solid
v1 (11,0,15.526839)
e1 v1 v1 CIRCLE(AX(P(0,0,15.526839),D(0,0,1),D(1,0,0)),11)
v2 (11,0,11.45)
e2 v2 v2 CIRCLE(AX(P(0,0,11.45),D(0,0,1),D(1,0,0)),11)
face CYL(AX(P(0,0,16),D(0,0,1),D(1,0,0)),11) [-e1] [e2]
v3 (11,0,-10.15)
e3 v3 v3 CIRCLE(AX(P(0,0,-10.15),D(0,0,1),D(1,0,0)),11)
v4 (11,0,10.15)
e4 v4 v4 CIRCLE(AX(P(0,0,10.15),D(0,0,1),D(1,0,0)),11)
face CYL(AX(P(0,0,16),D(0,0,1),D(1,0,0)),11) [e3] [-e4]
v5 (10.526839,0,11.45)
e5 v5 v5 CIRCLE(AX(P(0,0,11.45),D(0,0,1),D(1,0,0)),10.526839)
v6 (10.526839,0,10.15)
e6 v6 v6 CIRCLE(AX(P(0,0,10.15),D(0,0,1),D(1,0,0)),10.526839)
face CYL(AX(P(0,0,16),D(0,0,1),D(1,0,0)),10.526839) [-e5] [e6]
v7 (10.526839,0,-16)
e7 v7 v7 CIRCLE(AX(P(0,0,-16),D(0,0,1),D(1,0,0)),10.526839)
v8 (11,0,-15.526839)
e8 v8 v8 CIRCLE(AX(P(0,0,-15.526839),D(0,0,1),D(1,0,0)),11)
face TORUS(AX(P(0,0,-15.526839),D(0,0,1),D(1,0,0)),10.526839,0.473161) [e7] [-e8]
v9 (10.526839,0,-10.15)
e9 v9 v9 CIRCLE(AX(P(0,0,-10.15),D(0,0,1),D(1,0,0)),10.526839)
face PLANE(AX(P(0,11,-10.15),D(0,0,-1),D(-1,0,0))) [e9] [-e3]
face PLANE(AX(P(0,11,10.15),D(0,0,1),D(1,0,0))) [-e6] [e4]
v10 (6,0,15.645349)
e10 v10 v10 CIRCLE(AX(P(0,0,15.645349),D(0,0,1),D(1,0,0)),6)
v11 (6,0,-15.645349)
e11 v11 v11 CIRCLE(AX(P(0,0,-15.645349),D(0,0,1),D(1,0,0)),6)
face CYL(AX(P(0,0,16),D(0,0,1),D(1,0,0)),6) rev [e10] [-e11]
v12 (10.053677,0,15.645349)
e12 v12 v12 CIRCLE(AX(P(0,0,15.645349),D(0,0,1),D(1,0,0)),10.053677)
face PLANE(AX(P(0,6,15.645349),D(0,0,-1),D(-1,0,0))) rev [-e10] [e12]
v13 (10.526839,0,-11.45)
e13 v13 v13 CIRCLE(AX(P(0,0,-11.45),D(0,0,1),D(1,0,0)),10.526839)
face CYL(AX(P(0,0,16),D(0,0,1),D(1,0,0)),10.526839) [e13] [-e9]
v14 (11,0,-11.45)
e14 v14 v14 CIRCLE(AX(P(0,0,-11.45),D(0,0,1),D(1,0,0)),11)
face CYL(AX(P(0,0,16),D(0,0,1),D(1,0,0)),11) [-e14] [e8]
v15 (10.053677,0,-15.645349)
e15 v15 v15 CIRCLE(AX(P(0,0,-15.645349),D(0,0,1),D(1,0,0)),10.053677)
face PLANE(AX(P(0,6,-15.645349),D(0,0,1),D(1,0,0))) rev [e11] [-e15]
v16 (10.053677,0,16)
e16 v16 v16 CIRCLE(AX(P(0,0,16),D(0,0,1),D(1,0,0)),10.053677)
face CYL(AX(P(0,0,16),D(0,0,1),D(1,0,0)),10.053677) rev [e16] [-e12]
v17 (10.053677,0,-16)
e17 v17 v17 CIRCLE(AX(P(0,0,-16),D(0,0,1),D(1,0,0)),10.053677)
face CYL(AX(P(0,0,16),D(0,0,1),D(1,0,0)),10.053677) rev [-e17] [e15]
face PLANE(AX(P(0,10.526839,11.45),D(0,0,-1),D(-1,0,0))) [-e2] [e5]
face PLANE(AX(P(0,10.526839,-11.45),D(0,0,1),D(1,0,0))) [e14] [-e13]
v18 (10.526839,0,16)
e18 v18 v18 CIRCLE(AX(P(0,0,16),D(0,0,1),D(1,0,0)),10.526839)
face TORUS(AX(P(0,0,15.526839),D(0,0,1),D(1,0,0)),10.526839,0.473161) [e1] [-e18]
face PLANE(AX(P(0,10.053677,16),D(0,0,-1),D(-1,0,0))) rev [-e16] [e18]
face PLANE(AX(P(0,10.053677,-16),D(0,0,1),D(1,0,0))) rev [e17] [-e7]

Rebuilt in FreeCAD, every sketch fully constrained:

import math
import FreeCAD as App
import Part
import Sketcher


def add_polygon(sketch, points):
    """Adds a closed chain of lines whose ends are joined by coincident constraints."""
    first, n = sketch.GeometryCount, len(points)
    for a, b in zip(points, points[1:] + points[:1]):
        sketch.addGeometry(Part.LineSegment(App.Vector(*a, 0), App.Vector(*b, 0)), False)
    for i in range(n):
        sketch.addConstraint(Sketcher.Constraint("Coincident", first + i, 2, first + (i + 1) % n, 1))

doc = App.newDocument("Part")
body = doc.addObject("PartDesign::Body", "Body")

# Sketch on YZ plane
sketch1 = body.newObject("Sketcher::SketchObject", "Sketch")
sketch1.AttachmentSupport = (doc.getObject("YZ_Plane"), [""])
sketch1.MapMode = "FlatFace"
sketch1.addGeometry(Part.LineSegment(App.Vector(10.05, 16, 0), App.Vector(10.05, 15.65, 0)), False)
sketch1.addGeometry(Part.LineSegment(App.Vector(10.05, 15.65, 0), App.Vector(6, 15.65, 0)), False)
sketch1.addGeometry(Part.LineSegment(App.Vector(6, 15.65, 0), App.Vector(6, -15.65, 0)), False)
sketch1.addGeometry(Part.LineSegment(App.Vector(6, -15.65, 0), App.Vector(10.05, -15.65, 0)), False)
sketch1.addGeometry(Part.LineSegment(App.Vector(10.05, -15.65, 0), App.Vector(10.05, -16, 0)), False)
sketch1.addGeometry(Part.LineSegment(App.Vector(10.05, -16, 0), App.Vector(10.53, -16, 0)), False)
sketch1.addGeometry(Part.ArcOfCircle(Part.Circle(App.Vector(10.53, -15.53, 0), App.Vector(0, 0, 1), 0.47), math.radians(-90), math.radians(0)), False)
sketch1.addGeometry(Part.LineSegment(App.Vector(11, -15.53, 0), App.Vector(11, 15.53, 0)), False)
sketch1.addGeometry(Part.ArcOfCircle(Part.Circle(App.Vector(10.53, 15.53, 0), App.Vector(0, 0, 1), 0.47), math.radians(0), math.radians(90)), False)
sketch1.addGeometry(Part.LineSegment(App.Vector(10.53, 16, 0), App.Vector(10.05, 16, 0)), False)
sketch1.addConstraint(Sketcher.Constraint("Coincident", 0, 2, 1, 1))
sketch1.addConstraint(Sketcher.Constraint("Coincident", 1, 2, 2, 1))
sketch1.addConstraint(Sketcher.Constraint("Coincident", 2, 2, 3, 1))
sketch1.addConstraint(Sketcher.Constraint("Coincident", 3, 2, 4, 1))
sketch1.addConstraint(Sketcher.Constraint("Coincident", 4, 2, 5, 1))
sketch1.addConstraint(Sketcher.Constraint("Tangent", 5, 2, 6, 1))
sketch1.addConstraint(Sketcher.Constraint("Tangent", 6, 2, 7, 1))
sketch1.addConstraint(Sketcher.Constraint("Tangent", 7, 2, 8, 1))
sketch1.addConstraint(Sketcher.Constraint("Tangent", 8, 2, 9, 1))
sketch1.addConstraint(Sketcher.Constraint("Coincident", 9, 2, 0, 1))
sketch1.addConstraint(Sketcher.Constraint("Vertical", 0))
sketch1.addConstraint(Sketcher.Constraint("Horizontal", 1))
sketch1.addConstraint(Sketcher.Constraint("Vertical", 2))
sketch1.addConstraint(Sketcher.Constraint("Horizontal", 3))
sketch1.addConstraint(Sketcher.Constraint("Vertical", 4))
sketch1.addConstraint(Sketcher.Constraint("Horizontal", 5))
sketch1.addConstraint(Sketcher.Constraint("Vertical", 7))
sketch1.addConstraint(Sketcher.Constraint("Horizontal", 9))
sketch1.addConstraint(Sketcher.Constraint("Equal", 6, 8))
sketch1.addConstraint(Sketcher.Constraint("Symmetric", 0, 2, 3, 2, -1))
sketch1.addConstraint(Sketcher.Constraint("Equal", 0, 4))
sketch1.addConstraint(Sketcher.Constraint("DistanceX", -1, 1, 1, 2, 6.0))
sketch1.addConstraint(Sketcher.Constraint("DistanceY", 4, 2, -1, 1, 16.0))
sketch1.addConstraint(Sketcher.Constraint("DistanceX", -1, 1, 6, 2, 11.0))
sketch1.addConstraint(Sketcher.Constraint("Radius", 6, 0.473161))
sketch1.addConstraint(Sketcher.Constraint("DistanceY", 2, 2, 2, 1, 31.290698))
sketch1.addConstraint(Sketcher.Constraint("DistanceX", 5, 1, 5, 2, 0.473161))
revolution = body.newObject("PartDesign::Revolution", "Revolution")
revolution.Profile = sketch1
revolution.ReferenceAxis = (sketch1, ["V_Axis"])
revolution.Angle = 360

# Sketch on YZ plane
sketch2 = body.newObject("Sketcher::SketchObject", "Sketch001")
sketch2.AttachmentSupport = (doc.getObject("YZ_Plane"), [""])
sketch2.MapMode = "FlatFace"
add_polygon(sketch2, [(11, -10.15), (10.53, -10.15), (10.53, -11.45), (11, -11.45)])  # lines 0-3
add_polygon(sketch2, [(11, 11.45), (10.53, 11.45), (10.53, 10.15), (11, 10.15)])  # lines 4-7
sketch2.addConstraint(Sketcher.Constraint("Horizontal", 0))
sketch2.addConstraint(Sketcher.Constraint("Vertical", 1))
sketch2.addConstraint(Sketcher.Constraint("Horizontal", 2))
sketch2.addConstraint(Sketcher.Constraint("Vertical", 3))
sketch2.addConstraint(Sketcher.Constraint("Horizontal", 4))
sketch2.addConstraint(Sketcher.Constraint("Vertical", 5))
sketch2.addConstraint(Sketcher.Constraint("Horizontal", 6))
sketch2.addConstraint(Sketcher.Constraint("Vertical", 7))
sketch2.addConstraint(Sketcher.Constraint("Symmetric", 1, 2, 4, 2, -1))
sketch2.addConstraint(Sketcher.Constraint("Symmetric", 3, 2, 6, 2, -1))
sketch2.addConstraint(Sketcher.Constraint("DistanceY", 1, 2, 1, 1, 1.3))
sketch2.addConstraint(Sketcher.Constraint("DistanceX", -1, 1, 2, 2, 11.0))
sketch2.addConstraint(Sketcher.Constraint("DistanceY", 0, 2, 4, 2, 21.6))
sketch2.addConstraint(Sketcher.Constraint("DistanceX", 0, 2, 0, 1, 0.473161))
groove = body.newObject("PartDesign::Groove", "Groove")
groove.Profile = sketch2
groove.ReferenceAxis = (sketch2, ["V_Axis"])
groove.Angle = 360

doc.recompute()
